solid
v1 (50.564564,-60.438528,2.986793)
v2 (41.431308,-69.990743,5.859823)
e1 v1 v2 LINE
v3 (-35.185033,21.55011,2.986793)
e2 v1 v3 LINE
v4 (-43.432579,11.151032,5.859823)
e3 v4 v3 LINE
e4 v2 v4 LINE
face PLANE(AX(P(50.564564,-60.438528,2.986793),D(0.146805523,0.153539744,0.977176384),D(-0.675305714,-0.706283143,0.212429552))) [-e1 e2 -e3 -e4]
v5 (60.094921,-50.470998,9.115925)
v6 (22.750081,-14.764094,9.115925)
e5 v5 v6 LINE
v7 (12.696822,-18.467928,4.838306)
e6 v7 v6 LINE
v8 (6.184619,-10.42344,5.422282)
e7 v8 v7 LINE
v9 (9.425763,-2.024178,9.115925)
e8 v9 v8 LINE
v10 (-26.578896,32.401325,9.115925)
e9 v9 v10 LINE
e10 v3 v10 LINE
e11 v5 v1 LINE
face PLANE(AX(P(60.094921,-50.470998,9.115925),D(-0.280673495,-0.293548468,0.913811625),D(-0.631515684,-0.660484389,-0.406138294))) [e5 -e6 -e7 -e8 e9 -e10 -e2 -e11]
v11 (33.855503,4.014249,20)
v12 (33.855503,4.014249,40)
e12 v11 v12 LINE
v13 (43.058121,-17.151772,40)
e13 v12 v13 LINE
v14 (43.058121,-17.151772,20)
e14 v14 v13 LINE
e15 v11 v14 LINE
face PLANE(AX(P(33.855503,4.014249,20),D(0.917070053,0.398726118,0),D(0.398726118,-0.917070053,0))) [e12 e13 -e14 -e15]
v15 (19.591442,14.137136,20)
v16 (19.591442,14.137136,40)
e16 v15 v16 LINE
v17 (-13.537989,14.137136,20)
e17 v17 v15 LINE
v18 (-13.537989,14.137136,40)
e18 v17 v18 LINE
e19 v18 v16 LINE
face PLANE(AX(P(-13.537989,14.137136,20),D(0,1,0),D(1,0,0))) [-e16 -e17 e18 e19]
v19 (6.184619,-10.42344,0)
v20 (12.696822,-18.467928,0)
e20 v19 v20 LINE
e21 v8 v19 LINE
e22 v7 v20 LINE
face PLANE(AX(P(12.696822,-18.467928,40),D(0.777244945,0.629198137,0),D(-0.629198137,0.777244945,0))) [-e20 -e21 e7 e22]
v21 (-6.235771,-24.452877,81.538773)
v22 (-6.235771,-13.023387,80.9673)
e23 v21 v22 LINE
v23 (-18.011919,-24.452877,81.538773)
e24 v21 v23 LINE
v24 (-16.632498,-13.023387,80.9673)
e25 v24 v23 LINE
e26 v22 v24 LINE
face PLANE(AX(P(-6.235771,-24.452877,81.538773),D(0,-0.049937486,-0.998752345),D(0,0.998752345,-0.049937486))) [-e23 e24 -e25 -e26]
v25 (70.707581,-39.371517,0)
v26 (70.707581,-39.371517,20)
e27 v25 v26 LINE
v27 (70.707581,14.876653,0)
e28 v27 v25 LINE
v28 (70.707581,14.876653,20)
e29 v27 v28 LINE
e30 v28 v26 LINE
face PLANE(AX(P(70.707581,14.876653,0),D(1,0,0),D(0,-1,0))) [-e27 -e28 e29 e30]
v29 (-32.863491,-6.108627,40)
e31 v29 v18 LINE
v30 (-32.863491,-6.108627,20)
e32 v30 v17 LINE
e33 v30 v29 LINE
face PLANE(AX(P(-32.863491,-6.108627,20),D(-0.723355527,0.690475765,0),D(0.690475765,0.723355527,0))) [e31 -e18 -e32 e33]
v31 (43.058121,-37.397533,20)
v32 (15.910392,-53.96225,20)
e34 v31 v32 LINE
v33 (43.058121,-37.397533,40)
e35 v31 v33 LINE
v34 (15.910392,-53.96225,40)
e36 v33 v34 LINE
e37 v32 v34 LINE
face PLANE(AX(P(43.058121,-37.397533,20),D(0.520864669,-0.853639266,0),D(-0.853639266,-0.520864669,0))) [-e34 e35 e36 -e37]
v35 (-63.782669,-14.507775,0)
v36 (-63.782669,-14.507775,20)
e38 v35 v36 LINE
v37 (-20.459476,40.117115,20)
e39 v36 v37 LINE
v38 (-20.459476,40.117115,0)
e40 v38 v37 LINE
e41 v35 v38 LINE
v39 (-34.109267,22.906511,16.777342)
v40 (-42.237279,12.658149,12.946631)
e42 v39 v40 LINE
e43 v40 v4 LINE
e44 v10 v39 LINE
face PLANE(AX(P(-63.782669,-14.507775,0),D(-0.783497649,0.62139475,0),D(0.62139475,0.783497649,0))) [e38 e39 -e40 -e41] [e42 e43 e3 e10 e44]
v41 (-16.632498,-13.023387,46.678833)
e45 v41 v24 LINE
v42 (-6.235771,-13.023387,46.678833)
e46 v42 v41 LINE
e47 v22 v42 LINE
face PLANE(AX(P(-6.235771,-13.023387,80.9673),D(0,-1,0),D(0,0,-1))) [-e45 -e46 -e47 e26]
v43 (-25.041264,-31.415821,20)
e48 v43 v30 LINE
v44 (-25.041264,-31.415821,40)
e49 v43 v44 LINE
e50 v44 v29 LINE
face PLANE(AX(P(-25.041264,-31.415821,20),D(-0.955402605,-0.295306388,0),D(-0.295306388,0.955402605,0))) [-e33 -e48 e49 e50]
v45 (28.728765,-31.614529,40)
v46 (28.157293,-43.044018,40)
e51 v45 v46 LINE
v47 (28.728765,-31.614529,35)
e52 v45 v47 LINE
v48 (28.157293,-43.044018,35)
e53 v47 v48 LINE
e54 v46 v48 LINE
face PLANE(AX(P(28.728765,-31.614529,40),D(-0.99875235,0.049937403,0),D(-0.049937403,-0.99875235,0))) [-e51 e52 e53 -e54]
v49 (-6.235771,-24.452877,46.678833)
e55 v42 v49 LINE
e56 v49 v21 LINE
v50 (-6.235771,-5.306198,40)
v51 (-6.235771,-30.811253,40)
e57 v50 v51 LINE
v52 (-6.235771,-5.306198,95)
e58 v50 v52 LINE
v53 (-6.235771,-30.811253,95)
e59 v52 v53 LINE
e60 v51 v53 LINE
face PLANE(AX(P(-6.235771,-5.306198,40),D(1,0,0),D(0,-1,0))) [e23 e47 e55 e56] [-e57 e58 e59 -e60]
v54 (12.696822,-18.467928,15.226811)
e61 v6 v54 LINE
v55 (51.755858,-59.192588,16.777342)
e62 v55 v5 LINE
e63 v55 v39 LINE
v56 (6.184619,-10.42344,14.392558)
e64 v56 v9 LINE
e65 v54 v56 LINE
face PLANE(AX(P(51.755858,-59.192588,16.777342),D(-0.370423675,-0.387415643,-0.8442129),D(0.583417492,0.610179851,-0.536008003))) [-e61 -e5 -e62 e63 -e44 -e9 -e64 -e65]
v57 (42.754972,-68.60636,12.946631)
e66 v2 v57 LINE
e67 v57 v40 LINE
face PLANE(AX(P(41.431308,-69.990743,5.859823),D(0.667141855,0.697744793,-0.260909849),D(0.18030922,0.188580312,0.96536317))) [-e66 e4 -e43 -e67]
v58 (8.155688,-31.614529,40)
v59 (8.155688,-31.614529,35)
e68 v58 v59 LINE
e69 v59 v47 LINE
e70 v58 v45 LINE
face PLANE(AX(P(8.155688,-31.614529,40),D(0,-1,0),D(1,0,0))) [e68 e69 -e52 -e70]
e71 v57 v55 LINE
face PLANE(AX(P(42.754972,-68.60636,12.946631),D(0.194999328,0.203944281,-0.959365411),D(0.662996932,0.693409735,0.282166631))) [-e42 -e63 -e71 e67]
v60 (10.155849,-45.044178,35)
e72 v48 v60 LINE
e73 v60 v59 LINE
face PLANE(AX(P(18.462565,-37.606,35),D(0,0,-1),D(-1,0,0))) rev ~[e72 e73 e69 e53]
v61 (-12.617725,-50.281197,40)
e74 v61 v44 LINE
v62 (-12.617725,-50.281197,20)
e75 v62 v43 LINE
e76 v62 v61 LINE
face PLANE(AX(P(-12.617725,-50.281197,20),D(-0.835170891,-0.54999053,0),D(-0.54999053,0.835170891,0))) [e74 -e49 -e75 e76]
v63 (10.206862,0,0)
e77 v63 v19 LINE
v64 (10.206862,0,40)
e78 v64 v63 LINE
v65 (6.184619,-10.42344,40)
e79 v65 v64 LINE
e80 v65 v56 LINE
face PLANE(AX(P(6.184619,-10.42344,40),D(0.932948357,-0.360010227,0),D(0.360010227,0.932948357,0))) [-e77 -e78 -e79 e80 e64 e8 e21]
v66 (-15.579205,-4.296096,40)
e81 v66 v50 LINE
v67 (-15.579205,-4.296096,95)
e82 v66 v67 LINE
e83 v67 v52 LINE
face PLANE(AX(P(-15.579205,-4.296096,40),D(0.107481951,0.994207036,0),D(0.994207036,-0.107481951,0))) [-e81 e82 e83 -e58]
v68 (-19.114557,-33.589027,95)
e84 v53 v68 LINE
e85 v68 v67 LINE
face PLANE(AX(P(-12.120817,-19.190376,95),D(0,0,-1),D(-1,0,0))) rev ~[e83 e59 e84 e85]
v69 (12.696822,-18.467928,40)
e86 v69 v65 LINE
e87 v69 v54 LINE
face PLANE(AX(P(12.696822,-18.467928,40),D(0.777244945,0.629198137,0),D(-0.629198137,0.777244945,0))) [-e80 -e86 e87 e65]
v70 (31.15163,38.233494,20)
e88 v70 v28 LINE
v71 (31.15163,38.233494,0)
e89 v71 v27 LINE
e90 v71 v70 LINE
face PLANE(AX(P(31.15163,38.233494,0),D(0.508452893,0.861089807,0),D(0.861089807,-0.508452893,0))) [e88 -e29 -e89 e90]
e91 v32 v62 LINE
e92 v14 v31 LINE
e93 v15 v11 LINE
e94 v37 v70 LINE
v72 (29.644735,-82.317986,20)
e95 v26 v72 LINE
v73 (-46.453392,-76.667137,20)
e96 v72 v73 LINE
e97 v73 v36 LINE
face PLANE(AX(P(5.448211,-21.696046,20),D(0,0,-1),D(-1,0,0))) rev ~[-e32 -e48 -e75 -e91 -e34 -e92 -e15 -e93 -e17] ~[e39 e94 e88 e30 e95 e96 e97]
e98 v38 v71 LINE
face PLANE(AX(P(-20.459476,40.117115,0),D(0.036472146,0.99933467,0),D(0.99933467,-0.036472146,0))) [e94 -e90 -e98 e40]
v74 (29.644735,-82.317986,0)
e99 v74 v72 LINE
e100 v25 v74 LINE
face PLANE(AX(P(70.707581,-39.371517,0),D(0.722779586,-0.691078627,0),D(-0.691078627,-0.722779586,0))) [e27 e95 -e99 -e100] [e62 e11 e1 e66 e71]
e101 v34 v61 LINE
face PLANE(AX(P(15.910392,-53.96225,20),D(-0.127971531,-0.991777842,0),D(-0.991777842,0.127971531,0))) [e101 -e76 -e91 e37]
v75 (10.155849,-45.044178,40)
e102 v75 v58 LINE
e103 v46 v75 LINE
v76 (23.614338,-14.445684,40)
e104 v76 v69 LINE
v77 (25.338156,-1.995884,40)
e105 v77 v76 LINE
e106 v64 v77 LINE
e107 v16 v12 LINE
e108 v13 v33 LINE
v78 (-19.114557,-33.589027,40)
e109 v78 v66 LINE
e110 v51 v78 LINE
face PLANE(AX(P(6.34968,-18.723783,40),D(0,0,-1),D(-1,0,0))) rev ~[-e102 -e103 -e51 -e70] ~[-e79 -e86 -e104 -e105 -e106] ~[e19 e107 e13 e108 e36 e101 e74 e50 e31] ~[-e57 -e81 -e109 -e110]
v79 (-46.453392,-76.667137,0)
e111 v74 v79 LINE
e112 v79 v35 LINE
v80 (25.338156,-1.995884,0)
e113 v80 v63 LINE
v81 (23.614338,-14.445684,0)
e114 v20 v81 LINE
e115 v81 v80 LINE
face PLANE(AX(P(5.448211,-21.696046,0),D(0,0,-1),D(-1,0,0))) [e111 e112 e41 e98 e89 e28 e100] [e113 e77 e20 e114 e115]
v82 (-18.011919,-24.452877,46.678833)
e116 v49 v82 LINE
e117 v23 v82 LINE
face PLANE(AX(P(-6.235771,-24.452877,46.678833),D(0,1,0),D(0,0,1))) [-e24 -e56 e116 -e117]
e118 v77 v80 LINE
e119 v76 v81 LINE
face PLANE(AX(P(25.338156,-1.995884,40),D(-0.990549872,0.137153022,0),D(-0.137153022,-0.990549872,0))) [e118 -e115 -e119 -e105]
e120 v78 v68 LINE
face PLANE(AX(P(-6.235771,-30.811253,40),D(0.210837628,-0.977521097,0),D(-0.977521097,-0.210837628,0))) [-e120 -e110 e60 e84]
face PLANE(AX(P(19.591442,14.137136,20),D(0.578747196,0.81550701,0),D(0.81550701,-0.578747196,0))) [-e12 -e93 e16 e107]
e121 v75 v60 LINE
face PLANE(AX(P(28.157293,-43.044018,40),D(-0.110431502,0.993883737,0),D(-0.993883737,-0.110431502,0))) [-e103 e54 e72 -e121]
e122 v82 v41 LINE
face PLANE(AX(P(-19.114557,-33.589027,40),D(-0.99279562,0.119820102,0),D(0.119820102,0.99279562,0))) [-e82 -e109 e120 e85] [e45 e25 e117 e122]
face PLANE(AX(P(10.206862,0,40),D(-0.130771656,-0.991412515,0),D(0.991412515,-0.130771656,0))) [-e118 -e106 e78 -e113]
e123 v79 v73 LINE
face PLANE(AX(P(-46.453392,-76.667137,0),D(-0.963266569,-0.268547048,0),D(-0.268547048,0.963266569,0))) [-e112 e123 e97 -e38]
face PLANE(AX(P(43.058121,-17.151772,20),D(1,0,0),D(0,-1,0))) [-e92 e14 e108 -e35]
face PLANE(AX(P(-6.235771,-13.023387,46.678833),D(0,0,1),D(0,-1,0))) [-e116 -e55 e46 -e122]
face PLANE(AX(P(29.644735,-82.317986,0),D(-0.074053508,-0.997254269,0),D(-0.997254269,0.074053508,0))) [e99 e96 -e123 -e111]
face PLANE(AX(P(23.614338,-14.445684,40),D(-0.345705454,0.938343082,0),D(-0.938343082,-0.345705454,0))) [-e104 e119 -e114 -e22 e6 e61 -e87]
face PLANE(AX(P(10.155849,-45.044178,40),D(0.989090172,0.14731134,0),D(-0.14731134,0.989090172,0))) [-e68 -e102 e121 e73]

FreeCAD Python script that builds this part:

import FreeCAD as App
import Part
import Sketcher

V = App.Vector
Q = App.Units.Quantity

doc = App.newDocument("Part")
body = doc.addObject("PartDesign::Body", "Body")

sketch1 = doc.addObject("Sketcher::SketchObject", "Sketch")
body.addObject(sketch1)
sketch1.AttachmentSupport = (doc.XY_Plane, [""])
sketch1.MapMode = "FlatFace"
sketch1.addGeometry(Part.LineSegment(V(31, 38, 0), V(-20, 40, 0)), False)
sketch1.addGeometry(Part.LineSegment(V(-20, 40, 0), V(-64, -15, 0)), False)
sketch1.addGeometry(Part.LineSegment(V(-64, -15, 0), V(-46, -77, 0)), False)
sketch1.addGeometry(Part.LineSegment(V(-46, -77, 0), V(30, -82, 0)), False)
sketch1.addGeometry(Part.LineSegment(V(30, -82, 0), V(71, -39, 0)), False)
sketch1.addGeometry(Part.LineSegment(V(71, -39, 0), V(71, 15, 0)), False)
sketch1.addGeometry(Part.LineSegment(V(71, 15, 0), V(31, 38, 0)), False)
sketch1.addConstraint(Sketcher.Constraint("Coincident", 0, 2, 1, 1))
sketch1.addConstraint(Sketcher.Constraint("Coincident", 1, 2, 2, 1))
sketch1.addConstraint(Sketcher.Constraint("Coincident", 2, 2, 3, 1))
sketch1.addConstraint(Sketcher.Constraint("Coincident", 3, 2, 4, 1))
sketch1.addConstraint(Sketcher.Constraint("Coincident", 4, 2, 5, 1))
sketch1.addConstraint(Sketcher.Constraint("Coincident", 5, 2, 6, 1))
sketch1.addConstraint(Sketcher.Constraint("Coincident", 6, 2, 0, 1))
sketch1.addConstraint(Sketcher.Constraint("Vertical", 5))
sketch1.addConstraint(Sketcher.Constraint("DistanceY", 5, 1, 5, 2, Q("54.24817 mm")))
sketch1.addConstraint(Sketcher.Constraint("DistanceY", 3, 2, 0, 2, Q("122.435101 mm")))
sketch1.addConstraint(Sketcher.Constraint("DistanceX", 1, 2, 6, 2, Q("94.934299 mm")))
sketch1.addConstraint(Sketcher.Constraint("Distance", 2, Q("64.529762 mm")))
sketch1.addConstraint(Sketcher.Constraint("Distance", 6, Q("45.93708 mm")))
sketch1.addConstraint(Sketcher.Constraint("DistanceX", 1, 2, -1, 1, Q("63.782669 mm")))
sketch1.addConstraint(Sketcher.Constraint("DistanceX", -1, 1, 4, 2, Q("70.707581 mm")))
sketch1.addConstraint(Sketcher.Constraint("DistanceY", 1, 2, 0, 2, Q("54.62489 mm")))
sketch1.addConstraint(Sketcher.Constraint("DistanceY", 2, 2, 1, 2, Q("62.159362 mm")))
sketch1.addConstraint(Sketcher.Constraint("DistanceX", 0, 2, 3, 2, Q("50.104211 mm")))
sketch1.addConstraint(Sketcher.Constraint("DistanceY", 3, 2, 4, 2, Q("42.946469 mm")))
sketch1.addConstraint(Sketcher.Constraint("Distance", 0, Q("51.645467 mm")))
sketch1.addConstraint(Sketcher.Constraint("DistanceY", -1, 1, 0, 2, Q("40.117115 mm")))
pad1 = doc.addObject("PartDesign::Pad", "Pad")
body.addObject(pad1)
pad1.Profile = sketch1
pad1.Length = 20

sketch2 = doc.addObject("Sketcher::SketchObject", "Sketch001")
body.addObject(sketch2)
sketch2.AttachmentSupport = (doc.XY_Plane, [""])
sketch2.MapMode = "FlatFace"
sketch2.AttachmentOffset = App.Placement(V(0, 0, 20), App.Rotation())
sketch2.addGeometry(Part.LineSegment(V(20, 14, 0), V(-14, 14, 0)), False)
sketch2.addGeometry(Part.LineSegment(V(-14, 14, 0), V(-33, -6, 0)), False)
sketch2.addGeometry(Part.LineSegment(V(-33, -6, 0), V(-25, -31, 0)), False)
sketch2.addGeometry(Part.LineSegment(V(-25, -31, 0), V(-13, -50, 0)), False)
sketch2.addGeometry(Part.LineSegment(V(-13, -50, 0), V(16, -54, 0)), False)
sketch2.addGeometry(Part.LineSegment(V(16, -54, 0), V(43, -37, 0)), False)
sketch2.addGeometry(Part.LineSegment(V(43, -37, 0), V(43, -17, 0)), False)
sketch2.addGeometry(Part.LineSegment(V(43, -17, 0), V(34, 4, 0)), False)
sketch2.addGeometry(Part.LineSegment(V(34, 4, 0), V(20, 14, 0)), False)
sketch2.addConstraint(Sketcher.Constraint("Coincident", 0, 2, 1, 1))
sketch2.addConstraint(Sketcher.Constraint("Coincident", 1, 2, 2, 1))
sketch2.addConstraint(Sketcher.Constraint("Coincident", 2, 2, 3, 1))
sketch2.addConstraint(Sketcher.Constraint("Coincident", 3, 2, 4, 1))
sketch2.addConstraint(Sketcher.Constraint("Coincident", 4, 2, 5, 1))
sketch2.addConstraint(Sketcher.Constraint("Coincident", 5, 2, 6, 1))
sketch2.addConstraint(Sketcher.Constraint("Coincident", 6, 2, 7, 1))
sketch2.addConstraint(Sketcher.Constraint("Coincident", 7, 2, 8, 1))
sketch2.addConstraint(Sketcher.Constraint("Coincident", 8, 2, 0, 1))
sketch2.addConstraint(Sketcher.Constraint("Horizontal", 0))
sketch2.addConstraint(Sketcher.Constraint("Vertical", 6))
sketch2.addConstraint(Sketcher.Constraint("DistanceX", 0, 2, 0, 1, Q("33.129431 mm")))
sketch2.addConstraint(Sketcher.Constraint("DistanceY", 6, 1, 6, 2, Q("20.245761 mm")))
sketch2.addConstraint(Sketcher.Constraint("DistanceY", 4, 2, 7, 2, Q("57.976499 mm")))
sketch2.addConstraint(Sketcher.Constraint("Distance", 3, Q("22.588642 mm")))
sketch2.addConstraint(Sketcher.Constraint("Distance", 7, Q("23.080048 mm")))
sketch2.addConstraint(Sketcher.Constraint("DistanceX", 0, 2, -1, 1, Q("13.537989 mm")))
sketch2.addConstraint(Sketcher.Constraint("DistanceX", 1, 2, -1, 1, Q("32.863491 mm")))
sketch2.addConstraint(Sketcher.Constraint("DistanceY", 2, 2, -1, 1, Q("31.415821 mm")))
sketch2.addConstraint(Sketcher.Constraint("DistanceY", 4, 2, -1, 1, Q("53.96225 mm")))
sketch2.addConstraint(Sketcher.Constraint("DistanceX", -1, 1, 5, 2, Q("43.058121 mm")))
sketch2.addConstraint(Sketcher.Constraint("DistanceX", 2, 2, 3, 2, Q("12.423539 mm")))
sketch2.addConstraint(Sketcher.Constraint("DistanceY", 3, 2, 1, 2, Q("44.17257 mm")))
sketch2.addConstraint(Sketcher.Constraint("DistanceX", 0, 2, 4, 2, Q("29.448381 mm")))
sketch2.addConstraint(Sketcher.Constraint("DistanceY", 5, 2, 0, 2, Q("51.534669 mm")))
sketch2.addConstraint(Sketcher.Constraint("DistanceY", 2, 2, 6, 2, Q("14.264049 mm")))
sketch2.addConstraint(Sketcher.Constraint("Distance", 2, Q("26.488513 mm")))
pad2 = doc.addObject("PartDesign::Pad", "Pad001")
body.addObject(pad2)
pad2.Profile = sketch2
pad2.Length = 20

sketch3 = doc.addObject("Sketcher::SketchObject", "Sketch002")
body.addObject(sketch3)
sketch3.AttachmentSupport = (doc.XY_Plane, [""])
sketch3.MapMode = "FlatFace"
sketch3.AttachmentOffset = App.Placement(V(0, 0, 40), App.Rotation())
sketch3.addGeometry(Part.LineSegment(V(-6, -5, 0), V(-16, -4, 0)), False)
sketch3.addGeometry(Part.LineSegment(V(-16, -4, 0), V(-19, -34, 0)), False)
sketch3.addGeometry(Part.LineSegment(V(-19, -34, 0), V(-6, -31, 0)), False)
sketch3.addGeometry(Part.LineSegment(V(-6, -31, 0), V(-6, -5, 0)), False)
sketch3.addConstraint(Sketcher.Constraint("Coincident", 0, 2, 1, 1))
sketch3.addConstraint(Sketcher.Constraint("Coincident", 1, 2, 2, 1))
sketch3.addConstraint(Sketcher.Constraint("Coincident", 2, 2, 3, 1))
sketch3.addConstraint(Sketcher.Constraint("Coincident", 3, 2, 0, 1))
sketch3.addConstraint(Sketcher.Constraint("Vertical", 3))
sketch3.addConstraint(Sketcher.Constraint("Distance", 1, Q("29.5055 mm")))
sketch3.addConstraint(Sketcher.Constraint("DistanceY", 3, 2, -1, 1, Q("5.306198 mm")))
sketch3.addConstraint(Sketcher.Constraint("DistanceY", 3, 2, 0, 2, Q("1.010102 mm")))
sketch3.addConstraint(Sketcher.Constraint("DistanceY", 3, 1, 3, 2, Q("25.505055 mm")))
sketch3.addConstraint(Sketcher.Constraint("DistanceX", 2, 2, -1, 1, Q("6.235771 mm")))
sketch3.addConstraint(Sketcher.Constraint("DistanceY", 1, 2, 0, 2, Q("29.292931 mm")))
sketch3.addConstraint(Sketcher.Constraint("Distance", 0, Q("9.397876 mm")))
pad3 = doc.addObject("PartDesign::Pad", "Pad002")
body.addObject(pad3)
pad3.Profile = sketch3
pad3.Length = 55

sketch4 = doc.addObject("Sketcher::SketchObject", "Sketch003")
body.addObject(sketch4)
sketch4.AttachmentSupport = (doc.XY_Plane, [""])
sketch4.MapMode = "FlatFace"
sketch4.AttachmentOffset = App.Placement(V(0, 0, 40), App.Rotation())
sketch4.addGeometry(Part.LineSegment(V(29, -32, 0), V(8, -32, 0)), False)
sketch4.addGeometry(Part.LineSegment(V(8, -32, 0), V(10, -45, 0)), False)
sketch4.addGeometry(Part.LineSegment(V(10, -45, 0), V(28, -43, 0)), False)
sketch4.addGeometry(Part.LineSegment(V(28, -43, 0), V(29, -32, 0)), False)
sketch4.addConstraint(Sketcher.Constraint("Coincident", 0, 2, 1, 1))
sketch4.addConstraint(Sketcher.Constraint("Coincident", 1, 2, 2, 1))
sketch4.addConstraint(Sketcher.Constraint("Coincident", 2, 2, 3, 1))
sketch4.addConstraint(Sketcher.Constraint("Coincident", 3, 2, 0, 1))
sketch4.addConstraint(Sketcher.Constraint("Horizontal", 0))
sketch4.addConstraint(Sketcher.Constraint("Distance", 1, Q("13.57778 mm")))
sketch4.addConstraint(Sketcher.Constraint("DistanceX", 0, 2, 0, 1, Q("20.573077 mm")))
sketch4.addConstraint(Sketcher.Constraint("DistanceY", 0, 2, -1, 1, Q("31.614529 mm")))
sketch4.addConstraint(Sketcher.Constraint("DistanceX", -1, 1, 1, 2, Q("10.155849 mm")))
sketch4.addConstraint(Sketcher.Constraint("DistanceY", 1, 2, -1, 1, Q("45.044178 mm")))
sketch4.addConstraint(Sketcher.Constraint("DistanceY", 1, 2, 2, 2, Q("2.00016 mm")))
sketch4.addConstraint(Sketcher.Constraint("DistanceX", 2, 2, 3, 2, Q("0.571472 mm")))
pocket1 = doc.addObject("PartDesign::Pocket", "Pocket")
body.addObject(pocket1)
pocket1.Profile = sketch4
pocket1.Length = 5

sketch5 = doc.addObject("Sketcher::SketchObject", "Sketch004")
body.addObject(sketch5)
sketch5.AttachmentSupport = (doc.XY_Plane, [""])
sketch5.MapMode = "FlatFace"
sketch5.AttachmentOffset = App.Placement(V(0, 0, 40), App.Rotation())
sketch5.addGeometry(Part.LineSegment(V(25, -2, 0), V(10, 0, 0)), False)
sketch5.addGeometry(Part.LineSegment(V(10, 0, 0), V(6, -10, 0)), False)
sketch5.addGeometry(Part.LineSegment(V(6, -10, 0), V(13, -18, 0)), False)
sketch5.addGeometry(Part.LineSegment(V(13, -18, 0), V(24, -14, 0)), False)
sketch5.addGeometry(Part.LineSegment(V(24, -14, 0), V(25, -2, 0)), False)
sketch5.addConstraint(Sketcher.Constraint("Coincident", 0, 2, 1, 1))
sketch5.addConstraint(Sketcher.Constraint("Coincident", 1, 2, 2, 1))
sketch5.addConstraint(Sketcher.Constraint("Coincident", 2, 2, 3, 1))
sketch5.addConstraint(Sketcher.Constraint("Coincident", 3, 2, 4, 1))
sketch5.addConstraint(Sketcher.Constraint("Coincident", 4, 2, 0, 1))
sketch5.addConstraint(Sketcher.Constraint("PointOnObject", 0, 2, -1))
sketch5.addConstraint(Sketcher.Constraint("DistanceY", 3, 2, 4, 2, Q("12.4498 mm")))
sketch5.addConstraint(Sketcher.Constraint("Distance", 0, Q("15.262359 mm")))
sketch5.addConstraint(Sketcher.Constraint("Distance", 1, Q("11.17258 mm")))
sketch5.addConstraint(Sketcher.Constraint("DistanceX", -1, 1, 0, 2, Q("10.206862 mm")))
sketch5.addConstraint(Sketcher.Constraint("DistanceX", -1, 1, 1, 2, Q("6.184619 mm")))
sketch5.addConstraint(Sketcher.Constraint("DistanceX", -1, 1, 2, 2, Q("12.696822 mm")))
sketch5.addConstraint(Sketcher.Constraint("DistanceY", 2, 2, -1, 1, Q("18.467928 mm")))
sketch5.addConstraint(Sketcher.Constraint("DistanceX", -1, 1, 3, 2, Q("23.614338 mm")))
sketch5.addConstraint(Sketcher.Constraint("DistanceX", 3, 2, 4, 2, Q("1.723818 mm")))
pocket2 = doc.addObject("PartDesign::Pocket", "Pocket001")
body.addObject(pocket2)
pocket2.Profile = sketch5
pocket2.Type = "ThroughAll"

sketch6 = doc.addObject("Sketcher::SketchObject", "Sketch005")
body.addObject(sketch6)
sketch6.AttachmentSupport = (doc.YZ_Plane, [""])
sketch6.MapMode = "FlatFace"
sketch6.AttachmentOffset = App.Placement(V(0, 0, -6.235771), App.Rotation())
sketch6.addGeometry(Part.LineSegment(V(-13, 81, 0), V(-24, 82, 0)), False)
sketch6.addGeometry(Part.LineSegment(V(-24, 82, 0), V(-24, 47, 0)), False)
sketch6.addGeometry(Part.LineSegment(V(-24, 47, 0), V(-13, 47, 0)), False)
sketch6.addGeometry(Part.LineSegment(V(-13, 47, 0), V(-13, 81, 0)), False)
sketch6.addConstraint(Sketcher.Constraint("Coincident", 0, 2, 1, 1))
sketch6.addConstraint(Sketcher.Constraint("Coincident", 1, 2, 2, 1))
sketch6.addConstraint(Sketcher.Constraint("Coincident", 2, 2, 3, 1))
sketch6.addConstraint(Sketcher.Constraint("Coincident", 3, 2, 0, 1))
sketch6.addConstraint(Sketcher.Constraint("Vertical", 1))
sketch6.addConstraint(Sketcher.Constraint("Horizontal", 2))
sketch6.addConstraint(Sketcher.Constraint("Vertical", 3))
sketch6.addConstraint(Sketcher.Constraint("DistanceX", 2, 1, 2, 2, Q("11.42949 mm")))
sketch6.addConstraint(Sketcher.Constraint("DistanceY", 1, 2, 1, 1, Q("34.85994 mm")))
sketch6.addConstraint(Sketcher.Constraint("DistanceY", -1, 1, 3, 2, Q("80.9673 mm")))
sketch6.addConstraint(Sketcher.Constraint("DistanceY", 3, 1, 3, 2, Q("34.288467 mm")))
sketch6.addConstraint(Sketcher.Constraint("DistanceX", 0, 2, -1, 1, Q("24.452877 mm")))
pocket3 = doc.addObject("PartDesign::Pocket", "Pocket002")
body.addObject(pocket3)
pocket3.Profile = sketch6
pocket3.Type = "ThroughAll"

sketch7 = doc.addObject("Sketcher::SketchObject", "Sketch006")
body.addObject(sketch7)
sketch7.Placement = App.Placement(V(56.604346, -54.121691, 0), App.Rotation(V(0.691078627, 0.722779586, 0), V(0, 0, 0.999999999), V(0.722779586, -0.691078627, 0), "ZXY"))
sketch7.addGeometry(Part.LineSegment(V(-7, 17, 0), V(-20, 13, 0)), False)
sketch7.addGeometry(Part.LineSegment(V(-20, 13, 0), V(-22, 6, 0)), False)
sketch7.addGeometry(Part.LineSegment(V(-22, 6, 0), V(-9, 3, 0)), False)
sketch7.addGeometry(Part.LineSegment(V(-9, 3, 0), V(5, 9, 0)), False)
sketch7.addGeometry(Part.LineSegment(V(5, 9, 0), V(-7, 17, 0)), False)
sketch7.addConstraint(Sketcher.Constraint("Coincident", 0, 2, 1, 1))
sketch7.addConstraint(Sketcher.Constraint("Coincident", 1, 2, 2, 1))
sketch7.addConstraint(Sketcher.Constraint("Coincident", 2, 2, 3, 1))
sketch7.addConstraint(Sketcher.Constraint("Coincident", 3, 2, 4, 1))
sketch7.addConstraint(Sketcher.Constraint("Coincident", 4, 2, 0, 1))
sketch7.addConstraint(Sketcher.Constraint("DistanceY", 1, 2, 3, 2, Q("3.256102 mm")))
sketch7.addConstraint(Sketcher.Constraint("DistanceX", 0, 2, 4, 2, Q("13.024402 mm")))
sketch7.addConstraint(Sketcher.Constraint("Distance", 0, Q("13.57606 mm")))
sketch7.addConstraint(Sketcher.Constraint("Distance", 1, Q("7.34108 mm")))
sketch7.addConstraint(Sketcher.Constraint("DistanceX", 0, 2, -1, 1, Q("20.040229 mm")))
sketch7.addConstraint(Sketcher.Constraint("DistanceY", -1, 1, 0, 2, Q("12.946631 mm")))
sketch7.addConstraint(Sketcher.Constraint("DistanceX", 1, 2, -1, 1, Q("21.955589 mm")))
sketch7.addConstraint(Sketcher.Constraint("DistanceX", -1, 1, 3, 2, Q("5.050909 mm")))
sketch7.addConstraint(Sketcher.Constraint("DistanceY", 2, 2, 1, 2, Q("2.87303 mm")))
sketch7.addConstraint(Sketcher.Constraint("Distance", 2, Q("13.524625 mm")))
pocket4 = doc.addObject("PartDesign::Pocket", "Pocket003")
body.addObject(pocket4)
pocket4.Profile = sketch7
pocket4.Type = "ThroughAll"

doc.recompute()
